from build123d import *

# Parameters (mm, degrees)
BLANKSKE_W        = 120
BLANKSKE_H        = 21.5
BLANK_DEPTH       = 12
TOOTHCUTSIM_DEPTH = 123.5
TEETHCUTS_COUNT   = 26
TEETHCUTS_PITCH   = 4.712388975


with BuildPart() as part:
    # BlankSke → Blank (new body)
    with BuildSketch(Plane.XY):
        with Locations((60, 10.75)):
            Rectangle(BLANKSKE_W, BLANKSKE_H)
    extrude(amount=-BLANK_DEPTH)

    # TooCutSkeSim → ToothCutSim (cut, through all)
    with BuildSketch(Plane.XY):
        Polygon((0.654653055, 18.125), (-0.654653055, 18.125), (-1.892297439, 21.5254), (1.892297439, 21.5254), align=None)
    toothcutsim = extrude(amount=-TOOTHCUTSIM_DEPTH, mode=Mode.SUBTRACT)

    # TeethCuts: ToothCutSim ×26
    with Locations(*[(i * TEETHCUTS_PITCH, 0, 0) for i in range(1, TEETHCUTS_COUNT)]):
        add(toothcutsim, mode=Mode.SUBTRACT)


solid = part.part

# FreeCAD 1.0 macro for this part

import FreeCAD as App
import Part
import Sketcher

V = App.Vector
Q = App.Units.Quantity

doc = App.newDocument("Part")
body = doc.addObject("PartDesign::Body", "Body")

# Sketch on XY plane
sketch1 = body.newObject("Sketcher::SketchObject", "Sketch")
sketch1.AttachmentSupport = (doc.getObject("XY_Plane"), [""])
sketch1.MapMode = "FlatFace"
sketch1.addGeometry([
    Part.LineSegment(V(0, 22, 0), V(0, 0, 0)),
    Part.LineSegment(V(0, 0, 0), V(120, 0, 0)),
    Part.LineSegment(V(120, 0, 0), V(120, 22, 0)),
    Part.LineSegment(V(120, 22, 0), V(0, 22, 0)),
], False)
sketch1.addConstraint([
    Sketcher.Constraint("Coincident", 0, 2, 1, 1),
    Sketcher.Constraint("Coincident", 1, 2, 2, 1),
    Sketcher.Constraint("Coincident", 2, 2, 3, 1),
    Sketcher.Constraint("Coincident", 3, 2, 0, 1),
    Sketcher.Constraint("Vertical", 0),
    Sketcher.Constraint("Horizontal", 1),
    Sketcher.Constraint("Vertical", 2),
    Sketcher.Constraint("Horizontal", 3),
    Sketcher.Constraint("Coincident", 0, 2, -1, 1),
    Sketcher.Constraint("DistanceX", 1, 1, 1, 2, Q("120 mm")),
    Sketcher.Constraint("DistanceY", 0, 2, 0, 1, Q("21.5 mm")),
])
pad1 = body.newObject("PartDesign::Pad", "Pad")
pad1.Profile = sketch1
pad1.Length = 12
pad1.Reversed = True

# Sketch on XY plane
sketch2 = body.newObject("Sketcher::SketchObject", "Sketch001")
sketch2.AttachmentSupport = (doc.getObject("XY_Plane"), [""])
sketch2.MapMode = "FlatFace"
sketch2.addGeometry([
    Part.LineSegment(V(-0.7, 18.1, 0), V(0.7, 18.1, 0)),
    Part.LineSegment(V(0.7, 18.1, 0), V(1.9, 21.5, 0)),
    Part.LineSegment(V(1.9, 21.5, 0), V(-1.9, 21.5, 0)),
    Part.LineSegment(V(-1.9, 21.5, 0), V(-0.7, 18.1, 0)),
], False)
sketch2.addConstraint([
    Sketcher.Constraint("Coincident", 0, 2, 1, 1),
    Sketcher.Constraint("Coincident", 1, 2, 2, 1),
    Sketcher.Constraint("Coincident", 2, 2, 3, 1),
    Sketcher.Constraint("Coincident", 3, 2, 0, 1),
    Sketcher.Constraint("Horizontal", 0),
    Sketcher.Constraint("Horizontal", 2),
    Sketcher.Constraint("Equal", 1, 3),
    Sketcher.Constraint("Angle", 1, Q("70 deg")),
    Sketcher.Constraint("DistanceY", -1, 1, 0, 2, Q("18.125 mm")),
    Sketcher.Constraint("DistanceY", -1, 1, 1, 2, Q("21.5254 mm")),
    Sketcher.Constraint("DistanceX", 0, 1, 0, 2, Q("1.309306 mm")),
    Sketcher.Constraint("DistanceX", -1, 1, 0, 2, Q("0.654653 mm")),
])
pocket1 = body.newObject("PartDesign::Pocket", "Pocket")
pocket1.Profile = sketch2
pocket1.Type = "ThroughAll"
doc.recompute()

linearpattern = body.newObject("PartDesign::LinearPattern", "LinearPattern")
linearpattern.Originals = [pocket1]
linearpattern.Direction = (doc.getObject("X_Axis"), [""])
linearpattern.Mode = "offset"
linearpattern.Offset = 4.712389
linearpattern.Occurrences = 26
body.Tip = linearpattern

doc.recompute()
